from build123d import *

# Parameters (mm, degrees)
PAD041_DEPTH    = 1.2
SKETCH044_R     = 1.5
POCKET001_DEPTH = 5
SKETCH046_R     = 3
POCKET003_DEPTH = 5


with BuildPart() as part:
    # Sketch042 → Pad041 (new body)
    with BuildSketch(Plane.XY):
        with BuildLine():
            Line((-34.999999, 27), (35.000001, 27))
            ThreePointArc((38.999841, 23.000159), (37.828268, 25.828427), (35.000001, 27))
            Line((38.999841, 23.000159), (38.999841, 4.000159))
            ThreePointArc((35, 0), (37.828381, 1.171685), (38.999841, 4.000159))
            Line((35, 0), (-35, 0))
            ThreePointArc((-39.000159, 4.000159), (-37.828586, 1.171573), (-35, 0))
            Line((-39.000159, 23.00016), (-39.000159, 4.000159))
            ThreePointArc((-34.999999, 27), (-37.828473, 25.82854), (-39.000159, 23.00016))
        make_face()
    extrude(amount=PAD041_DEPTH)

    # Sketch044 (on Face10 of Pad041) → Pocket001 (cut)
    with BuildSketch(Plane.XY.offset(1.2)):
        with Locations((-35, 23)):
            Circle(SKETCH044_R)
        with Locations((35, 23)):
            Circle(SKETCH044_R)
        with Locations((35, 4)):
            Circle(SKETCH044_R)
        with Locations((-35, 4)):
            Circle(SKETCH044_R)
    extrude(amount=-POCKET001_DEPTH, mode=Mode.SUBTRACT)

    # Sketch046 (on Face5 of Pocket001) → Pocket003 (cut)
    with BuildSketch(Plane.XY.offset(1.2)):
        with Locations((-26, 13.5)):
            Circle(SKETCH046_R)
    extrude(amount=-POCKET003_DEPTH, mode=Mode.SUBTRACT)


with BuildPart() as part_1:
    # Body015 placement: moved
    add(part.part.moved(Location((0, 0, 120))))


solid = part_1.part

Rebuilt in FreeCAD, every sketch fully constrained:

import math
import FreeCAD as App
import Part
import Sketcher

doc = App.newDocument("Part")
body = doc.addObject("PartDesign::Body", "Body")

sketch1 = body.newObject("Sketcher::SketchObject", "Sketch")
sketch1.AttachmentSupport = (doc.getObject("XY_Plane"), [""])
sketch1.MapMode = "FlatFace"
sketch1.addGeometry(Part.LineSegment(App.Vector(35, 27, 0), App.Vector(-35, 27, 0)), False)
sketch1.addGeometry(Part.ArcOfCircle(Part.Circle(App.Vector(-35, 23, 0), App.Vector(0, 0, 1), 4), math.radians(90), math.radians(180)), False)
sketch1.addGeometry(Part.LineSegment(App.Vector(-39, 23, 0), App.Vector(-39, 4, 0)), False)
sketch1.addGeometry(Part.ArcOfCircle(Part.Circle(App.Vector(-35, 4, 0), App.Vector(0, 0, 1), 4), math.radians(180), math.radians(270)), False)
sketch1.addGeometry(Part.LineSegment(App.Vector(-35, 0, 0), App.Vector(35, 0, 0)), False)
sketch1.addGeometry(Part.ArcOfCircle(Part.Circle(App.Vector(35, 4, 0), App.Vector(0, 0, 1), 4), math.radians(-90), math.radians(0)), False)
sketch1.addGeometry(Part.LineSegment(App.Vector(39, 4, 0), App.Vector(39, 23, 0)), False)
sketch1.addGeometry(Part.ArcOfCircle(Part.Circle(App.Vector(35, 23, 0), App.Vector(0, 0, 1), 4), math.radians(0), math.radians(90)), False)
sketch1.addConstraint(Sketcher.Constraint("Coincident", 0, 2, 1, 1))
sketch1.addConstraint(Sketcher.Constraint("Coincident", 1, 2, 2, 1))
sketch1.addConstraint(Sketcher.Constraint("Coincident", 2, 2, 3, 1))
sketch1.addConstraint(Sketcher.Constraint("Coincident", 3, 2, 4, 1))
sketch1.addConstraint(Sketcher.Constraint("Coincident", 4, 2, 5, 1))
sketch1.addConstraint(Sketcher.Constraint("Coincident", 5, 2, 6, 1))
sketch1.addConstraint(Sketcher.Constraint("Coincident", 6, 2, 7, 1))
sketch1.addConstraint(Sketcher.Constraint("Coincident", 7, 2, 0, 1))
sketch1.addConstraint(Sketcher.Constraint("Horizontal", 0))
sketch1.addConstraint(Sketcher.Constraint("Vertical", 2))
sketch1.addConstraint(Sketcher.Constraint("Horizontal", 4))
sketch1.addConstraint(Sketcher.Constraint("Vertical", 6))
sketch1.addConstraint(Sketcher.Constraint("Equal", 1, 3))
sketch1.addConstraint(Sketcher.Constraint("Equal", 3, 5))
sketch1.addConstraint(Sketcher.Constraint("Equal", 5, 7))
sketch1.addConstraint(Sketcher.Constraint("Symmetric", 3, 2, 4, 2, -1, 1))
sketch1.addConstraint(Sketcher.Constraint("Horizontal", 2, 2, 5, 2))
sketch1.addConstraint(Sketcher.Constraint("Horizontal", 1, 2, 6, 2))
sketch1.addConstraint(Sketcher.Constraint("Vertical", 0, 2, 3, 2))
sketch1.addConstraint(Sketcher.Constraint("Vertical", 4, 2, 7, 2))
sketch1.addConstraint(Sketcher.Constraint("Radius", 1, 4.0))
sketch1.addConstraint(Sketcher.Constraint("DistanceX", 0, 2, 0, 1, 70.0))
sketch1.addConstraint(Sketcher.Constraint("DistanceY", 2, 2, 2, 1, 19.000001))
sketch1.addConstraint(Sketcher.Constraint("DistanceY", -1, 1, 1, 3, 23.0))
sketch1.addConstraint(Sketcher.Constraint("DistanceX", 3, 3, 5, 3, 70.000001))
sketch1.addConstraint(Sketcher.Constraint("DistanceX", 1, 3, -1, 1, 35.000159))
sketch1.addConstraint(Sketcher.Constraint("DistanceY", -1, 1, 1, 2, 23.00016))
pad1 = body.newObject("PartDesign::Pad", "Pad")
pad1.Profile = sketch1
pad1.Length = 1.2

sketch2 = body.newObject("Sketcher::SketchObject", "Sketch001")
sketch2.AttachmentSupport = (doc.getObject("XY_Plane"), [""])
sketch2.MapMode = "FlatFace"
sketch2.AttachmentOffset = App.Placement(App.Vector(0, 0, 1.2), App.Rotation())
sketch2.addGeometry(Part.Circle(App.Vector(-35, 23, 0), App.Vector(0, 0, 1), 1.5), False)
sketch2.addGeometry(Part.Circle(App.Vector(35, 23, 0), App.Vector(0, 0, 1), 1.5), False)
sketch2.addGeometry(Part.Circle(App.Vector(35, 4, 0), App.Vector(0, 0, 1), 1.5), False)
sketch2.addGeometry(Part.Circle(App.Vector(-35, 4, 0), App.Vector(0, 0, 1), 1.5), False)
sketch2.addConstraint(Sketcher.Constraint("Equal", 0, 1))
sketch2.addConstraint(Sketcher.Constraint("Equal", 1, 2))
sketch2.addConstraint(Sketcher.Constraint("Equal", 2, 3))
sketch2.addConstraint(Sketcher.Constraint("Symmetric", 0, 3, 1, 3, -2))
sketch2.addConstraint(Sketcher.Constraint("Symmetric", 2, 3, 3, 3, -2))
sketch2.addConstraint(Sketcher.Constraint("Vertical", 1, 3, 2, 3))
sketch2.addConstraint(Sketcher.Constraint("Diameter", 0, 3.0))
sketch2.addConstraint(Sketcher.Constraint("DistanceX", 0, 3, -1, 1, 35.0))
sketch2.addConstraint(Sketcher.Constraint("DistanceY", -1, 1, 0, 3, 23.0))
sketch2.addConstraint(Sketcher.Constraint("DistanceY", -1, 1, 2, 3, 4.0))
pocket1 = body.newObject("PartDesign::Pocket", "Pocket")
pocket1.Profile = sketch2
pocket1.Length = 5

sketch3 = body.newObject("Sketcher::SketchObject", "Sketch002")
sketch3.AttachmentSupport = (doc.getObject("XY_Plane"), [""])
sketch3.MapMode = "FlatFace"
sketch3.AttachmentOffset = App.Placement(App.Vector(0, 0, 1.2), App.Rotation())
sketch3.addGeometry(Part.Circle(App.Vector(-26, 13.5, 0), App.Vector(0, 0, 1), 3), False)
sketch3.addConstraint(Sketcher.Constraint("Diameter", 0, 6.0))
sketch3.addConstraint(Sketcher.Constraint("DistanceX", 0, 3, -1, 1, 26.0))
sketch3.addConstraint(Sketcher.Constraint("DistanceY", -1, 1, 0, 3, 13.5))
pocket2 = body.newObject("PartDesign::Pocket", "Pocket001")
pocket2.Profile = sketch3
pocket2.Length = 5
body2 = doc.addObject("PartDesign::Body", "Body001")
doc.recompute()

body.Placement = App.Placement(App.Vector(0, 0, 120), App.Rotation(App.Vector(0, 0, 1), 0))
boolean = body2.newObject("PartDesign::Boolean", "Boolean")
boolean.Type = "Fuse"
boolean.addObjects([body])

doc.recompute()
